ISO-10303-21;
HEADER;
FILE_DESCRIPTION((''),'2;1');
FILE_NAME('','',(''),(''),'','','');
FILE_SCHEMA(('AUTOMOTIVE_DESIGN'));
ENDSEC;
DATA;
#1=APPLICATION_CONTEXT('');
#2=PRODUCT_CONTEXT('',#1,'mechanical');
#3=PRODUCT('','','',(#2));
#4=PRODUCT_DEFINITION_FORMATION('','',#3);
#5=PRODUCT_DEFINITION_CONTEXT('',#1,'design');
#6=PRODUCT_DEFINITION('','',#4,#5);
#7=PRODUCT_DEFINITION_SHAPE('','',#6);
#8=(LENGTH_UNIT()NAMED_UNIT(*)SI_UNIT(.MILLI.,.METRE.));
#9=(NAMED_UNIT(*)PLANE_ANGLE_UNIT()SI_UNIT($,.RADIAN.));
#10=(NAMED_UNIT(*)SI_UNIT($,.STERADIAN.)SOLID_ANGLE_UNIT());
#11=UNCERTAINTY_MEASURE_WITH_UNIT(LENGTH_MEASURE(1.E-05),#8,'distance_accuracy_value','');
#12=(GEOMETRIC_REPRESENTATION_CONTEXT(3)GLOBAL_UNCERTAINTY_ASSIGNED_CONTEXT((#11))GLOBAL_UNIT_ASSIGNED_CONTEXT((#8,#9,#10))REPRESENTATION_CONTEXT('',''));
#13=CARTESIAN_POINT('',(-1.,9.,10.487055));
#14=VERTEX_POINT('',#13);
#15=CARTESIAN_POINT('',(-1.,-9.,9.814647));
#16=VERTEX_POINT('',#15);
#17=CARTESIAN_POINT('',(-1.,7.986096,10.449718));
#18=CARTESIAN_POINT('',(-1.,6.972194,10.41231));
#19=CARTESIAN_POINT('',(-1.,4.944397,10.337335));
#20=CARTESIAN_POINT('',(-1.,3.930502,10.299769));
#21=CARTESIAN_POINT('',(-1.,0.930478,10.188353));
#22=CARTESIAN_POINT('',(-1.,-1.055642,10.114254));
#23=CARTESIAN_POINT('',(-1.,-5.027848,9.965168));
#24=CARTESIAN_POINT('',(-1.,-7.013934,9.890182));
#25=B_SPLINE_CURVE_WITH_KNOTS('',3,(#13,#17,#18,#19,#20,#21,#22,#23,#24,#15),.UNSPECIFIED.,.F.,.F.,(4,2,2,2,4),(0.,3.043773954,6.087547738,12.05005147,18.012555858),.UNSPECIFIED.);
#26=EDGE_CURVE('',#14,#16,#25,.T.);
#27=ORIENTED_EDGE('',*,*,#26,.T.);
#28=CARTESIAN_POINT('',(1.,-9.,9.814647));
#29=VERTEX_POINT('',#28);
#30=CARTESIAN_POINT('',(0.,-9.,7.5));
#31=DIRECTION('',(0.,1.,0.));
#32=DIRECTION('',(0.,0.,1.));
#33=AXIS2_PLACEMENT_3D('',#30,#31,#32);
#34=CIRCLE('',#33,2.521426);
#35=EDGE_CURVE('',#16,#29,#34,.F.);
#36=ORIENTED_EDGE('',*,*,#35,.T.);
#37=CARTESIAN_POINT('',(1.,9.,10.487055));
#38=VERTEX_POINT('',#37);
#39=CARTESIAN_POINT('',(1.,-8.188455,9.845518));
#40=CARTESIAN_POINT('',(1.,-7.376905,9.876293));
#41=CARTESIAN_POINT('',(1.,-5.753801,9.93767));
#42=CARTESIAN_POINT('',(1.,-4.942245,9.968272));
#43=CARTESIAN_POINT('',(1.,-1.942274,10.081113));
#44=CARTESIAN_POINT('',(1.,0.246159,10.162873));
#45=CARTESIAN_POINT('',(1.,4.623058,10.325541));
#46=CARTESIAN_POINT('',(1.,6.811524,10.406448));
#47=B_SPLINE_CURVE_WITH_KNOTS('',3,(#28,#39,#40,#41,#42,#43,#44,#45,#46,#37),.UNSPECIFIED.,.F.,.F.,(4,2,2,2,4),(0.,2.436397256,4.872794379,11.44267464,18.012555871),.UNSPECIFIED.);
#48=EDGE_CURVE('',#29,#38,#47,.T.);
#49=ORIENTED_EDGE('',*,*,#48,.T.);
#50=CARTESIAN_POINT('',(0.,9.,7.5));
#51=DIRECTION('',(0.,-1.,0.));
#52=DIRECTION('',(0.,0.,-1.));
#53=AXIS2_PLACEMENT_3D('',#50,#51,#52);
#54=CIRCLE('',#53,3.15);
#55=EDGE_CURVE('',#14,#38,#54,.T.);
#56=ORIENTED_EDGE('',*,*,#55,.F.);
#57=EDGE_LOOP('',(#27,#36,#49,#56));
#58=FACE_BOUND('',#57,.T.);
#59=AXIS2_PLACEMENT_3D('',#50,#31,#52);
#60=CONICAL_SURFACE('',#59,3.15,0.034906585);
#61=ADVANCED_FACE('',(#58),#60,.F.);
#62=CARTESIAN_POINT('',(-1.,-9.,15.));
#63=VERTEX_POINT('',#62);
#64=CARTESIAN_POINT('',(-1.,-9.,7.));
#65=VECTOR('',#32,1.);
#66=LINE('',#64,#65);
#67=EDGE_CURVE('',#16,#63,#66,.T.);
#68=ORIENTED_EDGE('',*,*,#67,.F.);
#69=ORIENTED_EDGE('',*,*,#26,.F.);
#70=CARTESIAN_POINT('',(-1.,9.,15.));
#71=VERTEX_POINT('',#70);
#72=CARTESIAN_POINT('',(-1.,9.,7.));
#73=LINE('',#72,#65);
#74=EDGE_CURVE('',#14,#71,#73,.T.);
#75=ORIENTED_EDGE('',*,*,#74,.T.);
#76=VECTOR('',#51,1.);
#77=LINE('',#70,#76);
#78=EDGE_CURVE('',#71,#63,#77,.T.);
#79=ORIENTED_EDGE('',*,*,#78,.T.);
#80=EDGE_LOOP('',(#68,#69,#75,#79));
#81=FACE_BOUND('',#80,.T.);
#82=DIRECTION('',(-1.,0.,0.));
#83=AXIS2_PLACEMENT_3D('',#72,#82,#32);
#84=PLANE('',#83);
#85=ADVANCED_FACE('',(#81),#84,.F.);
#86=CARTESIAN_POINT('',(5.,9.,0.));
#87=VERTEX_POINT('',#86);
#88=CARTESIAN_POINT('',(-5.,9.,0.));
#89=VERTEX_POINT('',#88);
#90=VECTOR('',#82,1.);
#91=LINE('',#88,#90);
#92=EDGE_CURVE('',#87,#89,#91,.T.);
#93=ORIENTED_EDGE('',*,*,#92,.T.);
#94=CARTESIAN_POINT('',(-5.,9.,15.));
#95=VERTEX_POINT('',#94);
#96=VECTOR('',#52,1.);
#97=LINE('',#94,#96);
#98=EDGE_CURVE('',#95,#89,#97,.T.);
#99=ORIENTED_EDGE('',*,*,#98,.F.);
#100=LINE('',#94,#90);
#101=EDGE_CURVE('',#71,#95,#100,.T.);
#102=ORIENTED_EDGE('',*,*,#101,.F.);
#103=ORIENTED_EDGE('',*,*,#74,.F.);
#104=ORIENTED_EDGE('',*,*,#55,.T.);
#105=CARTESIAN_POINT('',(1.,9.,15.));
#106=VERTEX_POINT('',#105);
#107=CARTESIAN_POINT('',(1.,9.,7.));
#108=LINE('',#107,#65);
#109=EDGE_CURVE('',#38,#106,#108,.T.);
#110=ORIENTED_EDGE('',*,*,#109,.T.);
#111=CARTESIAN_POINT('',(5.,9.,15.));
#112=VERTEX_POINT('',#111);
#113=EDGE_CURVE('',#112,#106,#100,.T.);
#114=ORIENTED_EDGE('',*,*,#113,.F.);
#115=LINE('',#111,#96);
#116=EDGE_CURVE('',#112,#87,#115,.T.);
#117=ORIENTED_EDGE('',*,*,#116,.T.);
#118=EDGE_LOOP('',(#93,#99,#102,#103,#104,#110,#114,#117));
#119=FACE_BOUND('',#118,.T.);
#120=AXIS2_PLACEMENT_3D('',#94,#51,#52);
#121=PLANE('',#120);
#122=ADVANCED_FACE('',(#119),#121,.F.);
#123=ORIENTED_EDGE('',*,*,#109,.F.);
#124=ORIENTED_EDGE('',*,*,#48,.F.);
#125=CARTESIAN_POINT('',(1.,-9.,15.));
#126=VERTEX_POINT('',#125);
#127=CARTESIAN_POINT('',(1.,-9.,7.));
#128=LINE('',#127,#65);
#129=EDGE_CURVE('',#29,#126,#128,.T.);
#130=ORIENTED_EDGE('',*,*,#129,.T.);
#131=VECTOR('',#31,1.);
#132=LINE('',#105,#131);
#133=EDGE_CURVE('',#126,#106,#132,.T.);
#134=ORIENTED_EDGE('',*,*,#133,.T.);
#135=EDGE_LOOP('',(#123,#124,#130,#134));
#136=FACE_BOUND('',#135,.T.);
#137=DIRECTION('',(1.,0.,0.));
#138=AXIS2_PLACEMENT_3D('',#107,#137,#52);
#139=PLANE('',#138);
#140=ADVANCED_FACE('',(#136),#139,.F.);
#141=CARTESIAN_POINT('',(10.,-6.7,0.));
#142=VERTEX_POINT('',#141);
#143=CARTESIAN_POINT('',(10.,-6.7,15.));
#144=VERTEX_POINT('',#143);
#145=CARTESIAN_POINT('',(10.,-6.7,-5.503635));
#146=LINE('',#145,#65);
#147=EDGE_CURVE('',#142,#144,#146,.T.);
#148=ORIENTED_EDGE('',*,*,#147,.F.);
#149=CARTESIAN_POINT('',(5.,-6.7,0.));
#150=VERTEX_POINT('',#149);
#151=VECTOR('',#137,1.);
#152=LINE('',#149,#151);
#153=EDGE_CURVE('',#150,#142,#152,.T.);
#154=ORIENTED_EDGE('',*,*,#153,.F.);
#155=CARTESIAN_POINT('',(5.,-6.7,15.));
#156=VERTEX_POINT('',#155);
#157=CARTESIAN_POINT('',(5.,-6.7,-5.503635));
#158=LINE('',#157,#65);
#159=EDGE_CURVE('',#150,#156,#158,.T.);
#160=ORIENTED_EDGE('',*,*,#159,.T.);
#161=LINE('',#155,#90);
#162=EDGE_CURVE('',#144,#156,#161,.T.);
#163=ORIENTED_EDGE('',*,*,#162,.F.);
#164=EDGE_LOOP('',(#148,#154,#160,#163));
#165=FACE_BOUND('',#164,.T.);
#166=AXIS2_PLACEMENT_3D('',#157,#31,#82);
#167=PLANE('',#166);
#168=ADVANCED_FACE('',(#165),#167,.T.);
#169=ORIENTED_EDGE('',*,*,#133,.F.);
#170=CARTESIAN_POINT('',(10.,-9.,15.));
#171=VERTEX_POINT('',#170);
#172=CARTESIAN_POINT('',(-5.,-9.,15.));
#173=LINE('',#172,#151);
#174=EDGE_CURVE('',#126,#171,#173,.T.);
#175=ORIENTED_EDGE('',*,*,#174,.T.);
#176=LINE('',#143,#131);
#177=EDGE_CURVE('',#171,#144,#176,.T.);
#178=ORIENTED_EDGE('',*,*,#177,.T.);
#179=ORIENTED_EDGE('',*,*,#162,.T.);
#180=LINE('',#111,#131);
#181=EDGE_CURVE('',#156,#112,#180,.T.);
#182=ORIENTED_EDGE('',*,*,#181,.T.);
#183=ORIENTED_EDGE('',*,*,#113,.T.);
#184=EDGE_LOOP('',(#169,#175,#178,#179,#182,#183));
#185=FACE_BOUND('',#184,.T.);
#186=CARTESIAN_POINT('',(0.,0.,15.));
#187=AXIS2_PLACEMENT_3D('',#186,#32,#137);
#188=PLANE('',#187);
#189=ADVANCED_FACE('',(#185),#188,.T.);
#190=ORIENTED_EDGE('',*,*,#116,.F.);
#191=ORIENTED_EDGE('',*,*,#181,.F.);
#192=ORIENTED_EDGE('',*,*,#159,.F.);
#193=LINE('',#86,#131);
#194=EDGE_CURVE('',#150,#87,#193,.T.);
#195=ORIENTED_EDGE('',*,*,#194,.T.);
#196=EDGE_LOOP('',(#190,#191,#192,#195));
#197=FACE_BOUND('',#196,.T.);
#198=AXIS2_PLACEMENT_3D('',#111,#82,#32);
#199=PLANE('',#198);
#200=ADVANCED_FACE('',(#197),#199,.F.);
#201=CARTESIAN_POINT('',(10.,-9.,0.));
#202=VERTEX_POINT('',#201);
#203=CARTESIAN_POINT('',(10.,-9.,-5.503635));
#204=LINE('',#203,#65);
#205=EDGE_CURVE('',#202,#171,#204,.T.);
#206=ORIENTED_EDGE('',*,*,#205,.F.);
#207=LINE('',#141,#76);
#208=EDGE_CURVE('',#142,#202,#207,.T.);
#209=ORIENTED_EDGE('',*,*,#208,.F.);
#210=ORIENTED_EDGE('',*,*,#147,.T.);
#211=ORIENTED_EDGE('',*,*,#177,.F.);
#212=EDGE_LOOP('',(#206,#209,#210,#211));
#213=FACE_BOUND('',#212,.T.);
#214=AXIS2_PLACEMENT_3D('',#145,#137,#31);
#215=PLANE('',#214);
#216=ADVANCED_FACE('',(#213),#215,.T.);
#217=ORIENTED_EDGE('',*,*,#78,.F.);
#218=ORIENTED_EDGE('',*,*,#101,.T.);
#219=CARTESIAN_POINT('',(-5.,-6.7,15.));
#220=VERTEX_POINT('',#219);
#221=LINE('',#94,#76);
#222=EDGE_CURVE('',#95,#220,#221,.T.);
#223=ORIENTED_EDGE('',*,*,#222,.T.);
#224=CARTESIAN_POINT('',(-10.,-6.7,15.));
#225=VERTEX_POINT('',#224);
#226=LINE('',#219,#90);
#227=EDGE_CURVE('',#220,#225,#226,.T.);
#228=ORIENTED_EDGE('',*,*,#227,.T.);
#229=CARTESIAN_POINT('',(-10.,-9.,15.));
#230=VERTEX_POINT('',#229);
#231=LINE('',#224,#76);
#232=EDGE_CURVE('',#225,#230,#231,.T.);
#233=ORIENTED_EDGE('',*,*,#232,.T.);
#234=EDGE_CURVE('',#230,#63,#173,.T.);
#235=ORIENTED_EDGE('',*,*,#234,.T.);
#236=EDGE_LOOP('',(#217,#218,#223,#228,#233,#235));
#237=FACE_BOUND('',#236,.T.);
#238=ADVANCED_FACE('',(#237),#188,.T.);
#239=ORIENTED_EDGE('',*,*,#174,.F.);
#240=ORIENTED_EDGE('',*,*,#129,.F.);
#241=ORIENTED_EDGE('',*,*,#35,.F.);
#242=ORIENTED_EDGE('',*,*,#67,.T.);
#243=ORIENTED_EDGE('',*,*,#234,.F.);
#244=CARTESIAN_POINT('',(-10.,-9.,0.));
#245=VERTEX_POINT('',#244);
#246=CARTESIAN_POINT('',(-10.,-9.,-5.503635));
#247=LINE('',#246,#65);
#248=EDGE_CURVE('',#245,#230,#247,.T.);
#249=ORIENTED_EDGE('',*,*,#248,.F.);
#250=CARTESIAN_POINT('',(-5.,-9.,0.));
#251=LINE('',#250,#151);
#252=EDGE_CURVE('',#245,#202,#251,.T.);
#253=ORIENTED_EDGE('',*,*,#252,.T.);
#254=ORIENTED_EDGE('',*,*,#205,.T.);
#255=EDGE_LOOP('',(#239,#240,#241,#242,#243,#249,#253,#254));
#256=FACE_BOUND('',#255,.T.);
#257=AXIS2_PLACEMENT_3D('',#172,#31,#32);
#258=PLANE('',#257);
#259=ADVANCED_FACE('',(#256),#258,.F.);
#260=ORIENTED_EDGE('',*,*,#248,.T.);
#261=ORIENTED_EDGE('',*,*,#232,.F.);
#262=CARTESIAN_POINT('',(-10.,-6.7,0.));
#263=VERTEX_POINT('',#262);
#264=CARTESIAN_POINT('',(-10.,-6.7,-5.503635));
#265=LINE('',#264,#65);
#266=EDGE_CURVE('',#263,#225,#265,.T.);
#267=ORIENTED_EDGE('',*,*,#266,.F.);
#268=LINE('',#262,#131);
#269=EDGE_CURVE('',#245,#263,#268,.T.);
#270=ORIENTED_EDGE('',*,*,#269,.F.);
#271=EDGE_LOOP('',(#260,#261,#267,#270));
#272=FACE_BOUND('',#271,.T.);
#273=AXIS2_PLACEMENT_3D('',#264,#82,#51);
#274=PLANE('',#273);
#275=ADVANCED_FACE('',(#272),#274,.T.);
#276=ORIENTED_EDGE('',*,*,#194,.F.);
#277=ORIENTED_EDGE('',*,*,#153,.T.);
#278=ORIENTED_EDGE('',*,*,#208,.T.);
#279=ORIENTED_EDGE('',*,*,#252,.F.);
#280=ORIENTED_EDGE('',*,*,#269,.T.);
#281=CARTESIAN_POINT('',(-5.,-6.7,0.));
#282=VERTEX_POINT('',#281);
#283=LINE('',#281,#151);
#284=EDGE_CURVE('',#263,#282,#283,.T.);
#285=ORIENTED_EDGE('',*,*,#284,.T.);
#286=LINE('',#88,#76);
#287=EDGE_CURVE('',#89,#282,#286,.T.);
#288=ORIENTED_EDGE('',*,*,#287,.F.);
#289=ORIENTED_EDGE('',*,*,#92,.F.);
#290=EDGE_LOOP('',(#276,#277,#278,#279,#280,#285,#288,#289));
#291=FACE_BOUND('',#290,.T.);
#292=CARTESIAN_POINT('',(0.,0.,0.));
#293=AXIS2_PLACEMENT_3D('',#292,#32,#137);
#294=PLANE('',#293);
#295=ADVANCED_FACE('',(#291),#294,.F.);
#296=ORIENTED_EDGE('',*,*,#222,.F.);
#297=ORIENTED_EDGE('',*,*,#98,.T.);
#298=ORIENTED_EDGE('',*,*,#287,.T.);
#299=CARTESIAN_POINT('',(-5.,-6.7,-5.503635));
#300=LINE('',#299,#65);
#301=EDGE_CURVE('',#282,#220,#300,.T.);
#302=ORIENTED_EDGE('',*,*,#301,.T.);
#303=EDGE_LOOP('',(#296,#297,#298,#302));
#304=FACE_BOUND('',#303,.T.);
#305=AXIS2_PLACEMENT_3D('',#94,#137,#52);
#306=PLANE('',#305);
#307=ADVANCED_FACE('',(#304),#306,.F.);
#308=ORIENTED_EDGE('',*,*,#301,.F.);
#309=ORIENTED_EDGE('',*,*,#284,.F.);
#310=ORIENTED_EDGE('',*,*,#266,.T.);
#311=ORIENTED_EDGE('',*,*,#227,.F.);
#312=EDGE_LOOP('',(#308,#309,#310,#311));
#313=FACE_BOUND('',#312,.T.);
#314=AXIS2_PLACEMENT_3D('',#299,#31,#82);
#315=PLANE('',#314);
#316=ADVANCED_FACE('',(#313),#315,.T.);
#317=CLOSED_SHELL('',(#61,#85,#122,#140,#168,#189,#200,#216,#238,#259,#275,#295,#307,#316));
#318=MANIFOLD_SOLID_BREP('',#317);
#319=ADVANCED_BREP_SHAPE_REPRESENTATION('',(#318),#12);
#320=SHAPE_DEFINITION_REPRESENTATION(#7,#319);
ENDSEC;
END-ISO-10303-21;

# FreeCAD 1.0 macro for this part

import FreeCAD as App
import Part
import Sketcher
from FreeCAD import Vector


def faces_at(feature, points):
    """Names of the faces that lie closest to the given points."""
    faces = feature.Shape.Faces
    near = lambda p: min(range(len(faces)), key=lambda i: faces[i].distToShape(Part.Vertex(*p))[0])
    return sorted({f"Face{near(p) + 1}" for p in points})


def add_polygon(sketch, points):
    """Adds a closed chain of lines whose ends are joined by coincident constraints."""
    first, n = sketch.GeometryCount, len(points)
    for a, b in zip(points, points[1:] + points[:1]):
        sketch.addGeometry(Part.LineSegment(App.Vector(*a, 0), App.Vector(*b, 0)), False)
    for i in range(n):
        sketch.addConstraint(Sketcher.Constraint("Coincident", first + i, 2, first + (i + 1) % n, 1))

doc = App.newDocument("Part")
body = doc.addObject("PartDesign::Body", "Body")

sketch1 = body.newObject("Sketcher::SketchObject", "Sketch")
sketch1.AttachmentSupport = (doc.getObject("XY_Plane"), [""])
sketch1.MapMode = "FlatFace"
add_polygon(sketch1, [(-5, 9), (-5, -9), (5, -9), (5, 9)])
sketch1.addConstraint([
    Sketcher.Constraint("Vertical", 0),
    Sketcher.Constraint("Horizontal", 1),
    Sketcher.Constraint("Vertical", 2),
    Sketcher.Constraint("Horizontal", 3),
    Sketcher.Constraint("Symmetric", 0, 2, 2, 2, -1, 1),
    Sketcher.Constraint("DistanceX", 1, 1, 1, 2, 10.0),
    Sketcher.Constraint("DistanceY", 0, 2, 0, 1, 18.0),
])
pad1 = body.newObject("PartDesign::Pad", "Pad")
pad1.Profile = sketch1
pad1.Length = 15

sketch2 = body.newObject("Sketcher::SketchObject", "Sketch001")
sketch2.AttachmentSupport = (doc.getObject("XY_Plane"), [""])
sketch2.MapMode = "FlatFace"
sketch2.AttachmentOffset = App.Placement(Vector(0, 0, 15), App.Rotation())
add_polygon(sketch2, [(-10, -6.7), (-10, -9), (-5, -9), (-5, -6.7)])
add_polygon(sketch2, [(5, -6.7), (5, -9), (10, -9), (10, -6.7)])
sketch2.addConstraint([
    Sketcher.Constraint("Vertical", 0),
    Sketcher.Constraint("Horizontal", 1),
    Sketcher.Constraint("Vertical", 2),
    Sketcher.Constraint("Horizontal", 3),
    Sketcher.Constraint("Vertical", 4),
    Sketcher.Constraint("Horizontal", 5),
    Sketcher.Constraint("Vertical", 6),
    Sketcher.Constraint("Horizontal", 7),
    Sketcher.Constraint("Symmetric", 1, 2, 4, 2, -2),
    Sketcher.Constraint("Symmetric", 3, 2, 6, 2, -2),
    Sketcher.Constraint("DistanceX", 1, 1, 1, 2, 5.0),
    Sketcher.Constraint("DistanceY", 0, 2, 0, 1, 2.3),
    Sketcher.Constraint("DistanceX", 0, 2, -1, 1, 10.0),
    Sketcher.Constraint("DistanceY", 0, 2, -1, 1, 9.0),
])
pad2 = body.newObject("PartDesign::Pad", "Pad001")
pad2.Profile = sketch2
pad2.Length = 15
pad2.Reversed = True

sketch3 = body.newObject("Sketcher::SketchObject", "Sketch002")
sketch3.AttachmentSupport = (doc.getObject("XZ_Plane"), [""])
sketch3.MapMode = "FlatFace"
sketch3.AttachmentOffset = App.Placement(Vector(0, 0, 9), App.Rotation())
sketch3.addGeometry(Part.Circle(Vector(0, 7.5, 0), Vector(0, 0, 1), 3.1), False)
sketch3.addConstraint([
    Sketcher.Constraint("PointOnObject", 0, 3, -2),
    Sketcher.Constraint("Diameter", 0, 6.3),
    Sketcher.Constraint("DistanceY", -1, 1, 0, 3, 7.5),
])
pocket1 = body.newObject("PartDesign::Pocket", "Pocket")
pocket1.Profile = sketch3
pocket1.Type = "ThroughAll"

sketch4 = body.newObject("Sketcher::SketchObject", "Sketch003")
sketch4.AttachmentSupport = (doc.getObject("XY_Plane"), [""])
sketch4.MapMode = "FlatFace"
sketch4.AttachmentOffset = App.Placement(Vector(0, 0, 15), App.Rotation())
add_polygon(sketch4, [(-1, 9), (-1, -9), (1, -9), (1, 9)])
sketch4.addConstraint([
    Sketcher.Constraint("Vertical", 0),
    Sketcher.Constraint("Horizontal", 1),
    Sketcher.Constraint("Vertical", 2),
    Sketcher.Constraint("Horizontal", 3),
    Sketcher.Constraint("Symmetric", 0, 2, 2, 2, -1, 1),
    Sketcher.Constraint("DistanceX", 1, 1, 1, 2, 2.0),
    Sketcher.Constraint("DistanceY", 0, 2, 0, 1, 18.0),
])
pocket2 = body.newObject("PartDesign::Pocket", "Pocket001")
pocket2.Profile = sketch4
pocket2.Length = 8
doc.recompute()

datumplane = body.newObject("PartDesign::Plane", "DatumPlane")
datumplane.AttachmentSupport = (doc.getObject("XZ_Plane"), [""])
datumplane.MapMode = "FlatFace"
datumplane.AttachmentOffset = App.Placement(Vector(0, 0, -9), App.Rotation())
draft = body.newObject("PartDesign::Draft", "Draft")
draft.Base = (pocket2, faces_at(pocket2, [(0, 0, 4.35)]))
draft.NeutralPlane = (datumplane, [""])
draft.Angle = 2
draft.Reversed = True

doc.recompute()
